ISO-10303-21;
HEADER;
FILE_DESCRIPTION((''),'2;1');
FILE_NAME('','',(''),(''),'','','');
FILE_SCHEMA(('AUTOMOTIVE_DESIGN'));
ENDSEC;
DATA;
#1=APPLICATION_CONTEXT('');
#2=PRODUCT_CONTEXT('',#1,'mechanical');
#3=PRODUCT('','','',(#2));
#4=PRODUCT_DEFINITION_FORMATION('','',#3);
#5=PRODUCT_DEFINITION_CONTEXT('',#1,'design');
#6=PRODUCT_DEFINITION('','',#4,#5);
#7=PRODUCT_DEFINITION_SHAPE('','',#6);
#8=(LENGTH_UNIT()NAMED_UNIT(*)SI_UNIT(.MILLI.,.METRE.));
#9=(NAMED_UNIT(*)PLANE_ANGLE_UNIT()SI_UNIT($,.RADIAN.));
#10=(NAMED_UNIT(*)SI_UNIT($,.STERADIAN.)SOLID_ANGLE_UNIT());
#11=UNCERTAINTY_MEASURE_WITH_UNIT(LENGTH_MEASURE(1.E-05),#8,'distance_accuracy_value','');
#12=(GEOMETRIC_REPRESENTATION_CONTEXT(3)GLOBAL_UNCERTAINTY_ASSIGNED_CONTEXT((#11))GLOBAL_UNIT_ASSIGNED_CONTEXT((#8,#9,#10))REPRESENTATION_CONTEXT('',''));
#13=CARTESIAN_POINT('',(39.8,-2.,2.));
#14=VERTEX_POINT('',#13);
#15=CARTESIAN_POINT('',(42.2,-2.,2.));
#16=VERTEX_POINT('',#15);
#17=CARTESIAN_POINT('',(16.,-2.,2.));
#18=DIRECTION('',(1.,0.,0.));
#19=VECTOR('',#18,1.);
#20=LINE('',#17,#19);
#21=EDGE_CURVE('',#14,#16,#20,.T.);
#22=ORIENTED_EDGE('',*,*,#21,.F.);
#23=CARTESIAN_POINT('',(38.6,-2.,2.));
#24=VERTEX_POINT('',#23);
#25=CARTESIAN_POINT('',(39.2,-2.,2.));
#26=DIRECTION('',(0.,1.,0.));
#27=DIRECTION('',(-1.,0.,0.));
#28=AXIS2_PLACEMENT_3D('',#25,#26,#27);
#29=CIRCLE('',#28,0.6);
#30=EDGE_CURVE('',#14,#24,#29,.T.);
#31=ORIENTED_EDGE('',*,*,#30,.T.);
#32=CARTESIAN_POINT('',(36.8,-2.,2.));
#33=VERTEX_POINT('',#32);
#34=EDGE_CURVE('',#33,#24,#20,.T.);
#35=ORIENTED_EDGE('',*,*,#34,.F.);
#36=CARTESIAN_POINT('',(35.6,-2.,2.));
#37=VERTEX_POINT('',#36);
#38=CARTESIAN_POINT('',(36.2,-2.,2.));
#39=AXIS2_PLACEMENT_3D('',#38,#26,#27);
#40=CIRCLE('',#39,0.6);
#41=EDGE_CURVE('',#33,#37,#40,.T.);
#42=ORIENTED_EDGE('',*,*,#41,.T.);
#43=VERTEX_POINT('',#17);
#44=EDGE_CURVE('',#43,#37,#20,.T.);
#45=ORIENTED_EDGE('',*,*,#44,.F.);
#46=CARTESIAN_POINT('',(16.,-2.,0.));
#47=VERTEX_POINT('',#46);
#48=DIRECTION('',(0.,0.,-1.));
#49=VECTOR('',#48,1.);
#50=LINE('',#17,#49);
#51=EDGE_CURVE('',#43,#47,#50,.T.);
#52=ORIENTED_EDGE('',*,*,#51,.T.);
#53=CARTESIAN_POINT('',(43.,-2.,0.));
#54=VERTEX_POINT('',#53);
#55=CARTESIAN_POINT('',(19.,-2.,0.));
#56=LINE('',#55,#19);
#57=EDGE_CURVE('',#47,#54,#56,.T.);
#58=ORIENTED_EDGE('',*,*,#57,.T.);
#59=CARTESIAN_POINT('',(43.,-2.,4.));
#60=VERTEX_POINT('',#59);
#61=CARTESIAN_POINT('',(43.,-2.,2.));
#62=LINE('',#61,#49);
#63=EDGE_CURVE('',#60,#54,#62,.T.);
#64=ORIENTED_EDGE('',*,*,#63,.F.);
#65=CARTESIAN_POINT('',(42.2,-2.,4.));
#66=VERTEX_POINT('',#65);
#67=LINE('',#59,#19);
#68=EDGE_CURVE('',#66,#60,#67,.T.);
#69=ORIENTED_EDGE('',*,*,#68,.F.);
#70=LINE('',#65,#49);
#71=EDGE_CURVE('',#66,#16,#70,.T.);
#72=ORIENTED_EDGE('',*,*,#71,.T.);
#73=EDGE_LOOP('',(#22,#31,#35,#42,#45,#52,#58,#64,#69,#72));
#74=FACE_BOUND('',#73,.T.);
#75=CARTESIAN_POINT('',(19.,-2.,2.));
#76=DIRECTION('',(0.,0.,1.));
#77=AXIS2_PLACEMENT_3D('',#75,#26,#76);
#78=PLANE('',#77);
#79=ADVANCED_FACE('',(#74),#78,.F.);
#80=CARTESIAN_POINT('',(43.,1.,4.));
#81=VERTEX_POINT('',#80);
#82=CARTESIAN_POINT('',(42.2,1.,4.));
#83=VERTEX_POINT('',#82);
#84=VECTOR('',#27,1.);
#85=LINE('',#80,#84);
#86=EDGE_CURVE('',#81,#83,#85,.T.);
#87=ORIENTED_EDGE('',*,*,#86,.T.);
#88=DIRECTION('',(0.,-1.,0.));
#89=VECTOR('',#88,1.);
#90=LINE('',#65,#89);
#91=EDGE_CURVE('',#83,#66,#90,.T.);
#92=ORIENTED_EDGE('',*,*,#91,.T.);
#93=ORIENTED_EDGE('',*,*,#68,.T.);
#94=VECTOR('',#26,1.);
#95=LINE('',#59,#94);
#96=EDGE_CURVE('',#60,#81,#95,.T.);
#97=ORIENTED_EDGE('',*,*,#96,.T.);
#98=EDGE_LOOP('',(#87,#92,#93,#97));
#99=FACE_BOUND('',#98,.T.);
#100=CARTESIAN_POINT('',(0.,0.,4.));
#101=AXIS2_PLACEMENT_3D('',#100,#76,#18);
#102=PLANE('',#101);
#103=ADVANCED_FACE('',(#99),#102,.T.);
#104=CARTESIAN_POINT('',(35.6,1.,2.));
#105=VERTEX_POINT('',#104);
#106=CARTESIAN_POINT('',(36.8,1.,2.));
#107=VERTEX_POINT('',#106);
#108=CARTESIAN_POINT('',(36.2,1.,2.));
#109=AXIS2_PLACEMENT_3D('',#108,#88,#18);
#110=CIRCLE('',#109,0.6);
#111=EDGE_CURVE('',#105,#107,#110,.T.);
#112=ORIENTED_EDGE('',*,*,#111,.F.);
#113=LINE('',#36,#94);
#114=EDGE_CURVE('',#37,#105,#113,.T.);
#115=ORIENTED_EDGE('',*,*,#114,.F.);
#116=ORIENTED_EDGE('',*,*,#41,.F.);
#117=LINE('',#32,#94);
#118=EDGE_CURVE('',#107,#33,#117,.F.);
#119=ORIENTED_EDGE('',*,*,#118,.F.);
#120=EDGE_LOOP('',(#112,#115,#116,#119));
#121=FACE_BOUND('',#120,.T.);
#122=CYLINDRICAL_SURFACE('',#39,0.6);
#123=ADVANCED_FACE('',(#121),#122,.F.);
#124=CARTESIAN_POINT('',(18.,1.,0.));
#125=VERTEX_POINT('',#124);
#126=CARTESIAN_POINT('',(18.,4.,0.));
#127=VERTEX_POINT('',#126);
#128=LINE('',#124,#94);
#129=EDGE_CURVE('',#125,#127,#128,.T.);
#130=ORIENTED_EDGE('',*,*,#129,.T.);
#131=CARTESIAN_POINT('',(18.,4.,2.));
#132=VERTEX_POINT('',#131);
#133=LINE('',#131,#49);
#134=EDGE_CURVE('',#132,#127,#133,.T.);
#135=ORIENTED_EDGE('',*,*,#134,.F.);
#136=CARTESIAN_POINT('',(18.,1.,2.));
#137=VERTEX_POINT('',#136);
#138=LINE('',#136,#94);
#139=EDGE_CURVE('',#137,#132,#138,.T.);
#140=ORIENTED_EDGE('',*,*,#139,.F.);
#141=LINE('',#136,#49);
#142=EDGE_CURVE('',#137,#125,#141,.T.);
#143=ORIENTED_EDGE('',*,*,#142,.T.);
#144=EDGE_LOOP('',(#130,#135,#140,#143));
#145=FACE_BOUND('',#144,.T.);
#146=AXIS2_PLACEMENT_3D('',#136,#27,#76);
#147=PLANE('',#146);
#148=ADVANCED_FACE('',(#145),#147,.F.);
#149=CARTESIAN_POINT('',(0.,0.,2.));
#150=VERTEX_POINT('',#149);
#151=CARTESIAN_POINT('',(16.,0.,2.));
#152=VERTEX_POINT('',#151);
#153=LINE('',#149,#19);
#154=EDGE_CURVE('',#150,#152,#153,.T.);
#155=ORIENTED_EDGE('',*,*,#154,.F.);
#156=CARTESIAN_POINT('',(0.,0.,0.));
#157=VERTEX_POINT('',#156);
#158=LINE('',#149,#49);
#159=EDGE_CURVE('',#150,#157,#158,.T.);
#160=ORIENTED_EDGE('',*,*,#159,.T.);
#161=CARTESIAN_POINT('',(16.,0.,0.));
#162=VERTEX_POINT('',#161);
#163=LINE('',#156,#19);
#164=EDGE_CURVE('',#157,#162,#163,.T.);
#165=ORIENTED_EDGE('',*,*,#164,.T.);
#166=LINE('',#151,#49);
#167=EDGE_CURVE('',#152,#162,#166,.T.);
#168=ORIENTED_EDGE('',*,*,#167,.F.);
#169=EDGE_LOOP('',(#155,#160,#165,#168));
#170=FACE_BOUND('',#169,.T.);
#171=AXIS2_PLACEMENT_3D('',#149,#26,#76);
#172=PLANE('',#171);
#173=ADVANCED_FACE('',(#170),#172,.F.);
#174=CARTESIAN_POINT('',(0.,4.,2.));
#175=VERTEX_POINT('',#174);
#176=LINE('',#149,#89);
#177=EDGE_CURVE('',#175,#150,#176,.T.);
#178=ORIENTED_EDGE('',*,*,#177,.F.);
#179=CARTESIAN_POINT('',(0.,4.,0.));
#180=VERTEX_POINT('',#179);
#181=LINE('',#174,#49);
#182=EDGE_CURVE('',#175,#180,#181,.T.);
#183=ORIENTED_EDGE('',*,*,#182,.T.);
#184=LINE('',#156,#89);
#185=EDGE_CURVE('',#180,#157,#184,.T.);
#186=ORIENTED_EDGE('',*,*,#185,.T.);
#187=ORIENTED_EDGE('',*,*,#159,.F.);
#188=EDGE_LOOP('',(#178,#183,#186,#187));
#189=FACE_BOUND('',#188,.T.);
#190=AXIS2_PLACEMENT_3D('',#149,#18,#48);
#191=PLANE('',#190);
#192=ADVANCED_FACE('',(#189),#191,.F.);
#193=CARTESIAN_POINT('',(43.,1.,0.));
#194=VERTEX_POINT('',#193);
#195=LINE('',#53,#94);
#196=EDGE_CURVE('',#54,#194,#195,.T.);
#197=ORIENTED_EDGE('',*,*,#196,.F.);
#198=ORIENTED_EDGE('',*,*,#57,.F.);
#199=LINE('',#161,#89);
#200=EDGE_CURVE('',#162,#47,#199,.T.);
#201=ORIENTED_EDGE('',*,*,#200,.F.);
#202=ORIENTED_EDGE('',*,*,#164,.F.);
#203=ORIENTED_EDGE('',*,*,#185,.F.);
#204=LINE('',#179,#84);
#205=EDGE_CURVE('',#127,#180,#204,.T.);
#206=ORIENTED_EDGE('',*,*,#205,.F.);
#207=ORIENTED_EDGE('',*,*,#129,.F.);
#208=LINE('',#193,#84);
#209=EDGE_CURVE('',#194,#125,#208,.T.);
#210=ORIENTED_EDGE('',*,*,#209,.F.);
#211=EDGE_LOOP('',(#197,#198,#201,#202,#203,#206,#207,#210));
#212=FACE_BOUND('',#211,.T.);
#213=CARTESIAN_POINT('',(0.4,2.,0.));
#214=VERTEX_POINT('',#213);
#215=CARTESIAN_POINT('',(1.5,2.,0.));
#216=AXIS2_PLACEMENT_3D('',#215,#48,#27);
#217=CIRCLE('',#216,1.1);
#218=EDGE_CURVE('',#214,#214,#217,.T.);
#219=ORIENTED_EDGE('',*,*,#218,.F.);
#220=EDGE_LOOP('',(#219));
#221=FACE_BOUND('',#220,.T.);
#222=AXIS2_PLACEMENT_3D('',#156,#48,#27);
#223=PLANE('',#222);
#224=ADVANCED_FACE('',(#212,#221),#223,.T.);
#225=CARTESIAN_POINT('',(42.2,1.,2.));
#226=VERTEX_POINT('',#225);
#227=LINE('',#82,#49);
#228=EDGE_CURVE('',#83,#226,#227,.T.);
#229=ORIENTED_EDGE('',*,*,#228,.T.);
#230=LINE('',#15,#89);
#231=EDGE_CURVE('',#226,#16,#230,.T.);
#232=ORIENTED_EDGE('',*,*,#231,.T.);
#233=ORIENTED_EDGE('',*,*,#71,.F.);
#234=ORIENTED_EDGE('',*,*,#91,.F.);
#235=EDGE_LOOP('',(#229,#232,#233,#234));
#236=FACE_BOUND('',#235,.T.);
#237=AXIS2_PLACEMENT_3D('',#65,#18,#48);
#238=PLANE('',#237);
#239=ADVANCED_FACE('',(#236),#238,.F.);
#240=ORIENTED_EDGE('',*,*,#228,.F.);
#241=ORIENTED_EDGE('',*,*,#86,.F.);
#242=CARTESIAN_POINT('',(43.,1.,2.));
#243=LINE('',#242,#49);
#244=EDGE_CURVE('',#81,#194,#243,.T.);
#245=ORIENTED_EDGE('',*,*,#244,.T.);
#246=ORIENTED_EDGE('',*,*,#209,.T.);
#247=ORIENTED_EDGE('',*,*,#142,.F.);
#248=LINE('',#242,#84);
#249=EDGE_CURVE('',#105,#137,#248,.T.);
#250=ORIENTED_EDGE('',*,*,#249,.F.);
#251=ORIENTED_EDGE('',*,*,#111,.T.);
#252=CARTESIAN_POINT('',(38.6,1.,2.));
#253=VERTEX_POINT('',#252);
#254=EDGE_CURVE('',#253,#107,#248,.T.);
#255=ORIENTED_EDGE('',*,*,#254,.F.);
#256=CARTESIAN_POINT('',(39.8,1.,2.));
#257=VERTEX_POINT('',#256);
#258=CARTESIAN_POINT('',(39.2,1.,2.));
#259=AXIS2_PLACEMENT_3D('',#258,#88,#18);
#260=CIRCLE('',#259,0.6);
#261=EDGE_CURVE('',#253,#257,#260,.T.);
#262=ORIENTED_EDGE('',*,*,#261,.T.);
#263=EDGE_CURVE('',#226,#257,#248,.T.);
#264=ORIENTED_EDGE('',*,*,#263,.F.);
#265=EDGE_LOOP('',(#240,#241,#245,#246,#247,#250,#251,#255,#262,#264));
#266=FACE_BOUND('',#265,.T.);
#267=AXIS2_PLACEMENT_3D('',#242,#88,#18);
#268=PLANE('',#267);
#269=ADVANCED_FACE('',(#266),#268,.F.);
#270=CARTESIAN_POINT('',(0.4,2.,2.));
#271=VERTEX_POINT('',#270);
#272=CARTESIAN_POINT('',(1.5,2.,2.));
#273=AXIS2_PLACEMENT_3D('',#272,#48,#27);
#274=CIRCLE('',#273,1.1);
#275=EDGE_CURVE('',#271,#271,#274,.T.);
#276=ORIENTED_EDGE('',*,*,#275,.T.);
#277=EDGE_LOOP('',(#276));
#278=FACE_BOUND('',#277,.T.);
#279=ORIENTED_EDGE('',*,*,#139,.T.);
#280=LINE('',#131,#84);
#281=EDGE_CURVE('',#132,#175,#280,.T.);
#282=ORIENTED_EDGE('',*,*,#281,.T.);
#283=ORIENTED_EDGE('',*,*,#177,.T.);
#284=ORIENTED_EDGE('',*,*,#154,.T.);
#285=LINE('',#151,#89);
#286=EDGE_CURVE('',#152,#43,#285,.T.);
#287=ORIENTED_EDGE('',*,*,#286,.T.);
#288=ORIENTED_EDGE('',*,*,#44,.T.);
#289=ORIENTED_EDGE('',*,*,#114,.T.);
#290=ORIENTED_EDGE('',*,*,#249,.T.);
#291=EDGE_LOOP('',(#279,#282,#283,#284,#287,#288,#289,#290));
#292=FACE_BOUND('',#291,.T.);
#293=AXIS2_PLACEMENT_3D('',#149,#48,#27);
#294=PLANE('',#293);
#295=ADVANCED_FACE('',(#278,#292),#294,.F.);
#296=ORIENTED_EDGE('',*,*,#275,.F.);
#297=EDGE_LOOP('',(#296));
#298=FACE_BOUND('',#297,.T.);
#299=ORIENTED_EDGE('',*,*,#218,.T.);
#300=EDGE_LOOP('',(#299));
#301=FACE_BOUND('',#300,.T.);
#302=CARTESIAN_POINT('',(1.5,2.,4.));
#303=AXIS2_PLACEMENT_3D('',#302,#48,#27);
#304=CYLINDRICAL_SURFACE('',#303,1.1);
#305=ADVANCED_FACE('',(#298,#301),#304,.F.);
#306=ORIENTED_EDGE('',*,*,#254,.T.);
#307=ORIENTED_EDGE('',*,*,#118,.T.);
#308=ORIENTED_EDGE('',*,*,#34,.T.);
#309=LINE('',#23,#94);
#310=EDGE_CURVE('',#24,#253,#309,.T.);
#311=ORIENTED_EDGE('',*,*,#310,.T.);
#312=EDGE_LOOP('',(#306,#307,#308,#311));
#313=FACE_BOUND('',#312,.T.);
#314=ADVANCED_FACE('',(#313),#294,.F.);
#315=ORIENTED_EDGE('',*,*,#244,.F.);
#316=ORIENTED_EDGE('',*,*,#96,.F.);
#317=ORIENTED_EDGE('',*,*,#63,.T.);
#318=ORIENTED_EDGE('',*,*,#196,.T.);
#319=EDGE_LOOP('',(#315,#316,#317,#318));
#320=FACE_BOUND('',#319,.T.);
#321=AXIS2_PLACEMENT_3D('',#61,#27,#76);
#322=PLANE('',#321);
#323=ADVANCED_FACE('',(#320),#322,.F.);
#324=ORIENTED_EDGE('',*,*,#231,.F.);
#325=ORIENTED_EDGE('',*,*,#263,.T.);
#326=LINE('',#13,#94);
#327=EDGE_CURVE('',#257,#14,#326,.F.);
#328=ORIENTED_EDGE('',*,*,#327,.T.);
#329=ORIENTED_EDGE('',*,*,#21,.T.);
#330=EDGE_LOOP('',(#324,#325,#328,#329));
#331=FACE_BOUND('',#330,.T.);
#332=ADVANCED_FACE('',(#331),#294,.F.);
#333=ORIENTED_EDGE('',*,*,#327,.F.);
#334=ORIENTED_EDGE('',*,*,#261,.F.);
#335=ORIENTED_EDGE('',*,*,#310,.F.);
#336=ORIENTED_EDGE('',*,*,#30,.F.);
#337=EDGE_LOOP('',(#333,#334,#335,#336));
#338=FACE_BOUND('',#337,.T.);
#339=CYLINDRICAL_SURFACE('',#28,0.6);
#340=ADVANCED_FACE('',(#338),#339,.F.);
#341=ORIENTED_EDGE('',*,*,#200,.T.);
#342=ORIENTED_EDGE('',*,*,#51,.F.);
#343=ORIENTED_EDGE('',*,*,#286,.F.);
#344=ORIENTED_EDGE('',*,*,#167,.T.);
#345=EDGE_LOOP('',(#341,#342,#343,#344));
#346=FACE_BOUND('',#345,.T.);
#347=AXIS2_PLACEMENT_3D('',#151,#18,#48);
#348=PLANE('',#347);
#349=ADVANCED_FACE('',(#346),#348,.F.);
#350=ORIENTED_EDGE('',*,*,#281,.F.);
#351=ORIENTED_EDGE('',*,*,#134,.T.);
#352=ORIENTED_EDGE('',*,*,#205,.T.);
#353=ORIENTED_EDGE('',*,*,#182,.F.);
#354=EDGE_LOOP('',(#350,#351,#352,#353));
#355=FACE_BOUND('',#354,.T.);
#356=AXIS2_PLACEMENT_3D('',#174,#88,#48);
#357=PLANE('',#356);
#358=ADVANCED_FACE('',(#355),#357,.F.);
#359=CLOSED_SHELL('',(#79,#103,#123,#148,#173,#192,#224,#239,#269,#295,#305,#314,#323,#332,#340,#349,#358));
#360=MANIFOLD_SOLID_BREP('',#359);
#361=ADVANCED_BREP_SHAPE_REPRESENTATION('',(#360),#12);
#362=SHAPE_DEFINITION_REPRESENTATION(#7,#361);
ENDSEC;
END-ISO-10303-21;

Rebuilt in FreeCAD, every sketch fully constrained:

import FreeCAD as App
import Part
import Sketcher
from FreeCAD import Vector

doc = App.newDocument("Part")
body = doc.addObject("PartDesign::Body", "Body")

# Sketch on XY plane
sketch1 = body.newObject("Sketcher::SketchObject", "Sketch")
sketch1.AttachmentSupport = (doc.getObject("XY_Plane"), [""])
sketch1.MapMode = "FlatFace"
sketch1.addGeometry(Part.LineSegment(Vector(0, 0, 0), Vector(16, 0, 0)), False)
sketch1.addGeometry(Part.LineSegment(Vector(16, 0, 0), Vector(16, -2, 0)), False)
sketch1.addGeometry(Part.LineSegment(Vector(16, -2, 0), Vector(43, -2, 0)), False)
sketch1.addGeometry(Part.LineSegment(Vector(43, -2, 0), Vector(43, 1, 0)), False)
sketch1.addGeometry(Part.LineSegment(Vector(43, 1, 0), Vector(18, 1, 0)), False)
sketch1.addGeometry(Part.LineSegment(Vector(18, 1, 0), Vector(18, 4, 0)), False)
sketch1.addGeometry(Part.LineSegment(Vector(18, 4, 0), Vector(0, 4, 0)), False)
sketch1.addGeometry(Part.LineSegment(Vector(0, 4, 0), Vector(0, 0, 0)), False)
sketch1.addConstraint(Sketcher.Constraint("Coincident", 0, 2, 1, 1))
sketch1.addConstraint(Sketcher.Constraint("Coincident", 1, 2, 2, 1))
sketch1.addConstraint(Sketcher.Constraint("Coincident", 2, 2, 3, 1))
sketch1.addConstraint(Sketcher.Constraint("Coincident", 3, 2, 4, 1))
sketch1.addConstraint(Sketcher.Constraint("Coincident", 4, 2, 5, 1))
sketch1.addConstraint(Sketcher.Constraint("Coincident", 5, 2, 6, 1))
sketch1.addConstraint(Sketcher.Constraint("Coincident", 6, 2, 7, 1))
sketch1.addConstraint(Sketcher.Constraint("Coincident", 7, 2, 0, 1))
sketch1.addConstraint(Sketcher.Constraint("Horizontal", 0))
sketch1.addConstraint(Sketcher.Constraint("Vertical", 1))
sketch1.addConstraint(Sketcher.Constraint("Horizontal", 2))
sketch1.addConstraint(Sketcher.Constraint("Vertical", 3))
sketch1.addConstraint(Sketcher.Constraint("Horizontal", 4))
sketch1.addConstraint(Sketcher.Constraint("Vertical", 5))
sketch1.addConstraint(Sketcher.Constraint("Horizontal", 6))
sketch1.addConstraint(Sketcher.Constraint("Vertical", 7))
sketch1.addConstraint(Sketcher.Constraint("Coincident", 7, 2, -1, 1))
sketch1.addConstraint(Sketcher.Constraint("Equal", 3, 5))
sketch1.addConstraint(Sketcher.Constraint("DistanceX", 0, 1, 0, 2, 16.0))
sketch1.addConstraint(Sketcher.Constraint("DistanceX", 2, 1, 2, 2, 27.0))
sketch1.addConstraint(Sketcher.Constraint("DistanceX", 4, 2, 4, 1, 25.0))
sketch1.addConstraint(Sketcher.Constraint("DistanceY", 1, 2, 1, 1, 2.0))
sketch1.addConstraint(Sketcher.Constraint("DistanceY", 3, 1, 3, 2, 3.0))
pad1 = body.newObject("PartDesign::Pad", "Pad")
pad1.Profile = sketch1
pad1.Length = 2

# Sketch on XY plane
sketch2 = body.newObject("Sketcher::SketchObject", "Sketch001")
sketch2.AttachmentSupport = (doc.getObject("XY_Plane"), [""])
sketch2.MapMode = "FlatFace"
sketch2.AttachmentOffset = App.Placement(Vector(0, 0, 2), App.Rotation())
sketch2.addGeometry(Part.LineSegment(Vector(42.2, 1, 0), Vector(42.2, -2, 0)), False)
sketch2.addGeometry(Part.LineSegment(Vector(42.2, -2, 0), Vector(43, -2, 0)), False)
sketch2.addGeometry(Part.LineSegment(Vector(43, -2, 0), Vector(43, 1, 0)), False)
sketch2.addGeometry(Part.LineSegment(Vector(43, 1, 0), Vector(42.2, 1, 0)), False)
sketch2.addConstraint(Sketcher.Constraint("Coincident", 0, 2, 1, 1))
sketch2.addConstraint(Sketcher.Constraint("Coincident", 1, 2, 2, 1))
sketch2.addConstraint(Sketcher.Constraint("Coincident", 2, 2, 3, 1))
sketch2.addConstraint(Sketcher.Constraint("Coincident", 3, 2, 0, 1))
sketch2.addConstraint(Sketcher.Constraint("Vertical", 0))
sketch2.addConstraint(Sketcher.Constraint("Horizontal", 1))
sketch2.addConstraint(Sketcher.Constraint("Vertical", 2))
sketch2.addConstraint(Sketcher.Constraint("Horizontal", 3))
sketch2.addConstraint(Sketcher.Constraint("DistanceY", 0, 2, 0, 1, 3.0))
sketch2.addConstraint(Sketcher.Constraint("DistanceX", 1, 1, 1, 2, 0.8))
sketch2.addConstraint(Sketcher.Constraint("DistanceY", 0, 2, -1, 1, 2.0))
sketch2.addConstraint(Sketcher.Constraint("DistanceX", -1, 1, 1, 2, 43.0))
pad2 = body.newObject("PartDesign::Pad", "Pad001")
pad2.Profile = sketch2
pad2.Length = 2

# Sketch on XZ plane
sketch3 = body.newObject("Sketcher::SketchObject", "Sketch002")
sketch3.AttachmentSupport = (doc.getObject("XZ_Plane"), [""])
sketch3.MapMode = "FlatFace"
sketch3.AttachmentOffset = App.Placement(Vector(0, 0, -1), App.Rotation())
sketch3.addGeometry(Part.Circle(Vector(39.2, 2, 0), Vector(0, 0, 1), 0.6), False)
sketch3.addGeometry(Part.Circle(Vector(36.2, 2, 0), Vector(0, 0, 1), 0.6), False)
sketch3.addConstraint(Sketcher.Constraint("Equal", 0, 1))
sketch3.addConstraint(Sketcher.Constraint("Horizontal", 0, 3, 1, 3))
sketch3.addConstraint(Sketcher.Constraint("Diameter", 0, 1.2))
sketch3.addConstraint(Sketcher.Constraint("DistanceY", -1, 1, 0, 3, 2.0))
sketch3.addConstraint(Sketcher.Constraint("DistanceX", 1, 3, 0, 3, 3.0))
sketch3.addConstraint(Sketcher.Constraint("DistanceX", -1, 1, 0, 3, 39.2))
pocket1 = body.newObject("PartDesign::Pocket", "Pocket")
pocket1.Profile = sketch3
pocket1.Type = "ThroughAll"
pocket1.Reversed = True

# Sketch on XY plane
sketch4 = body.newObject("Sketcher::SketchObject", "Sketch003")
sketch4.AttachmentSupport = (doc.getObject("XY_Plane"), [""])
sketch4.MapMode = "FlatFace"
sketch4.addGeometry(Part.Circle(Vector(1.5, 2, 0), Vector(0, 0, 1), 1.1), False)
sketch4.addConstraint(Sketcher.Constraint("Diameter", 0, 2.2))
sketch4.addConstraint(Sketcher.Constraint("DistanceY", -1, 1, 0, 3, 2.0))
sketch4.addConstraint(Sketcher.Constraint("DistanceX", -1, 1, 0, 3, 1.5))
pocket2 = body.newObject("PartDesign::Pocket", "Pocket001")
pocket2.Profile = sketch4
pocket2.Type = "ThroughAll"
pocket2.Reversed = True

doc.recompute()
